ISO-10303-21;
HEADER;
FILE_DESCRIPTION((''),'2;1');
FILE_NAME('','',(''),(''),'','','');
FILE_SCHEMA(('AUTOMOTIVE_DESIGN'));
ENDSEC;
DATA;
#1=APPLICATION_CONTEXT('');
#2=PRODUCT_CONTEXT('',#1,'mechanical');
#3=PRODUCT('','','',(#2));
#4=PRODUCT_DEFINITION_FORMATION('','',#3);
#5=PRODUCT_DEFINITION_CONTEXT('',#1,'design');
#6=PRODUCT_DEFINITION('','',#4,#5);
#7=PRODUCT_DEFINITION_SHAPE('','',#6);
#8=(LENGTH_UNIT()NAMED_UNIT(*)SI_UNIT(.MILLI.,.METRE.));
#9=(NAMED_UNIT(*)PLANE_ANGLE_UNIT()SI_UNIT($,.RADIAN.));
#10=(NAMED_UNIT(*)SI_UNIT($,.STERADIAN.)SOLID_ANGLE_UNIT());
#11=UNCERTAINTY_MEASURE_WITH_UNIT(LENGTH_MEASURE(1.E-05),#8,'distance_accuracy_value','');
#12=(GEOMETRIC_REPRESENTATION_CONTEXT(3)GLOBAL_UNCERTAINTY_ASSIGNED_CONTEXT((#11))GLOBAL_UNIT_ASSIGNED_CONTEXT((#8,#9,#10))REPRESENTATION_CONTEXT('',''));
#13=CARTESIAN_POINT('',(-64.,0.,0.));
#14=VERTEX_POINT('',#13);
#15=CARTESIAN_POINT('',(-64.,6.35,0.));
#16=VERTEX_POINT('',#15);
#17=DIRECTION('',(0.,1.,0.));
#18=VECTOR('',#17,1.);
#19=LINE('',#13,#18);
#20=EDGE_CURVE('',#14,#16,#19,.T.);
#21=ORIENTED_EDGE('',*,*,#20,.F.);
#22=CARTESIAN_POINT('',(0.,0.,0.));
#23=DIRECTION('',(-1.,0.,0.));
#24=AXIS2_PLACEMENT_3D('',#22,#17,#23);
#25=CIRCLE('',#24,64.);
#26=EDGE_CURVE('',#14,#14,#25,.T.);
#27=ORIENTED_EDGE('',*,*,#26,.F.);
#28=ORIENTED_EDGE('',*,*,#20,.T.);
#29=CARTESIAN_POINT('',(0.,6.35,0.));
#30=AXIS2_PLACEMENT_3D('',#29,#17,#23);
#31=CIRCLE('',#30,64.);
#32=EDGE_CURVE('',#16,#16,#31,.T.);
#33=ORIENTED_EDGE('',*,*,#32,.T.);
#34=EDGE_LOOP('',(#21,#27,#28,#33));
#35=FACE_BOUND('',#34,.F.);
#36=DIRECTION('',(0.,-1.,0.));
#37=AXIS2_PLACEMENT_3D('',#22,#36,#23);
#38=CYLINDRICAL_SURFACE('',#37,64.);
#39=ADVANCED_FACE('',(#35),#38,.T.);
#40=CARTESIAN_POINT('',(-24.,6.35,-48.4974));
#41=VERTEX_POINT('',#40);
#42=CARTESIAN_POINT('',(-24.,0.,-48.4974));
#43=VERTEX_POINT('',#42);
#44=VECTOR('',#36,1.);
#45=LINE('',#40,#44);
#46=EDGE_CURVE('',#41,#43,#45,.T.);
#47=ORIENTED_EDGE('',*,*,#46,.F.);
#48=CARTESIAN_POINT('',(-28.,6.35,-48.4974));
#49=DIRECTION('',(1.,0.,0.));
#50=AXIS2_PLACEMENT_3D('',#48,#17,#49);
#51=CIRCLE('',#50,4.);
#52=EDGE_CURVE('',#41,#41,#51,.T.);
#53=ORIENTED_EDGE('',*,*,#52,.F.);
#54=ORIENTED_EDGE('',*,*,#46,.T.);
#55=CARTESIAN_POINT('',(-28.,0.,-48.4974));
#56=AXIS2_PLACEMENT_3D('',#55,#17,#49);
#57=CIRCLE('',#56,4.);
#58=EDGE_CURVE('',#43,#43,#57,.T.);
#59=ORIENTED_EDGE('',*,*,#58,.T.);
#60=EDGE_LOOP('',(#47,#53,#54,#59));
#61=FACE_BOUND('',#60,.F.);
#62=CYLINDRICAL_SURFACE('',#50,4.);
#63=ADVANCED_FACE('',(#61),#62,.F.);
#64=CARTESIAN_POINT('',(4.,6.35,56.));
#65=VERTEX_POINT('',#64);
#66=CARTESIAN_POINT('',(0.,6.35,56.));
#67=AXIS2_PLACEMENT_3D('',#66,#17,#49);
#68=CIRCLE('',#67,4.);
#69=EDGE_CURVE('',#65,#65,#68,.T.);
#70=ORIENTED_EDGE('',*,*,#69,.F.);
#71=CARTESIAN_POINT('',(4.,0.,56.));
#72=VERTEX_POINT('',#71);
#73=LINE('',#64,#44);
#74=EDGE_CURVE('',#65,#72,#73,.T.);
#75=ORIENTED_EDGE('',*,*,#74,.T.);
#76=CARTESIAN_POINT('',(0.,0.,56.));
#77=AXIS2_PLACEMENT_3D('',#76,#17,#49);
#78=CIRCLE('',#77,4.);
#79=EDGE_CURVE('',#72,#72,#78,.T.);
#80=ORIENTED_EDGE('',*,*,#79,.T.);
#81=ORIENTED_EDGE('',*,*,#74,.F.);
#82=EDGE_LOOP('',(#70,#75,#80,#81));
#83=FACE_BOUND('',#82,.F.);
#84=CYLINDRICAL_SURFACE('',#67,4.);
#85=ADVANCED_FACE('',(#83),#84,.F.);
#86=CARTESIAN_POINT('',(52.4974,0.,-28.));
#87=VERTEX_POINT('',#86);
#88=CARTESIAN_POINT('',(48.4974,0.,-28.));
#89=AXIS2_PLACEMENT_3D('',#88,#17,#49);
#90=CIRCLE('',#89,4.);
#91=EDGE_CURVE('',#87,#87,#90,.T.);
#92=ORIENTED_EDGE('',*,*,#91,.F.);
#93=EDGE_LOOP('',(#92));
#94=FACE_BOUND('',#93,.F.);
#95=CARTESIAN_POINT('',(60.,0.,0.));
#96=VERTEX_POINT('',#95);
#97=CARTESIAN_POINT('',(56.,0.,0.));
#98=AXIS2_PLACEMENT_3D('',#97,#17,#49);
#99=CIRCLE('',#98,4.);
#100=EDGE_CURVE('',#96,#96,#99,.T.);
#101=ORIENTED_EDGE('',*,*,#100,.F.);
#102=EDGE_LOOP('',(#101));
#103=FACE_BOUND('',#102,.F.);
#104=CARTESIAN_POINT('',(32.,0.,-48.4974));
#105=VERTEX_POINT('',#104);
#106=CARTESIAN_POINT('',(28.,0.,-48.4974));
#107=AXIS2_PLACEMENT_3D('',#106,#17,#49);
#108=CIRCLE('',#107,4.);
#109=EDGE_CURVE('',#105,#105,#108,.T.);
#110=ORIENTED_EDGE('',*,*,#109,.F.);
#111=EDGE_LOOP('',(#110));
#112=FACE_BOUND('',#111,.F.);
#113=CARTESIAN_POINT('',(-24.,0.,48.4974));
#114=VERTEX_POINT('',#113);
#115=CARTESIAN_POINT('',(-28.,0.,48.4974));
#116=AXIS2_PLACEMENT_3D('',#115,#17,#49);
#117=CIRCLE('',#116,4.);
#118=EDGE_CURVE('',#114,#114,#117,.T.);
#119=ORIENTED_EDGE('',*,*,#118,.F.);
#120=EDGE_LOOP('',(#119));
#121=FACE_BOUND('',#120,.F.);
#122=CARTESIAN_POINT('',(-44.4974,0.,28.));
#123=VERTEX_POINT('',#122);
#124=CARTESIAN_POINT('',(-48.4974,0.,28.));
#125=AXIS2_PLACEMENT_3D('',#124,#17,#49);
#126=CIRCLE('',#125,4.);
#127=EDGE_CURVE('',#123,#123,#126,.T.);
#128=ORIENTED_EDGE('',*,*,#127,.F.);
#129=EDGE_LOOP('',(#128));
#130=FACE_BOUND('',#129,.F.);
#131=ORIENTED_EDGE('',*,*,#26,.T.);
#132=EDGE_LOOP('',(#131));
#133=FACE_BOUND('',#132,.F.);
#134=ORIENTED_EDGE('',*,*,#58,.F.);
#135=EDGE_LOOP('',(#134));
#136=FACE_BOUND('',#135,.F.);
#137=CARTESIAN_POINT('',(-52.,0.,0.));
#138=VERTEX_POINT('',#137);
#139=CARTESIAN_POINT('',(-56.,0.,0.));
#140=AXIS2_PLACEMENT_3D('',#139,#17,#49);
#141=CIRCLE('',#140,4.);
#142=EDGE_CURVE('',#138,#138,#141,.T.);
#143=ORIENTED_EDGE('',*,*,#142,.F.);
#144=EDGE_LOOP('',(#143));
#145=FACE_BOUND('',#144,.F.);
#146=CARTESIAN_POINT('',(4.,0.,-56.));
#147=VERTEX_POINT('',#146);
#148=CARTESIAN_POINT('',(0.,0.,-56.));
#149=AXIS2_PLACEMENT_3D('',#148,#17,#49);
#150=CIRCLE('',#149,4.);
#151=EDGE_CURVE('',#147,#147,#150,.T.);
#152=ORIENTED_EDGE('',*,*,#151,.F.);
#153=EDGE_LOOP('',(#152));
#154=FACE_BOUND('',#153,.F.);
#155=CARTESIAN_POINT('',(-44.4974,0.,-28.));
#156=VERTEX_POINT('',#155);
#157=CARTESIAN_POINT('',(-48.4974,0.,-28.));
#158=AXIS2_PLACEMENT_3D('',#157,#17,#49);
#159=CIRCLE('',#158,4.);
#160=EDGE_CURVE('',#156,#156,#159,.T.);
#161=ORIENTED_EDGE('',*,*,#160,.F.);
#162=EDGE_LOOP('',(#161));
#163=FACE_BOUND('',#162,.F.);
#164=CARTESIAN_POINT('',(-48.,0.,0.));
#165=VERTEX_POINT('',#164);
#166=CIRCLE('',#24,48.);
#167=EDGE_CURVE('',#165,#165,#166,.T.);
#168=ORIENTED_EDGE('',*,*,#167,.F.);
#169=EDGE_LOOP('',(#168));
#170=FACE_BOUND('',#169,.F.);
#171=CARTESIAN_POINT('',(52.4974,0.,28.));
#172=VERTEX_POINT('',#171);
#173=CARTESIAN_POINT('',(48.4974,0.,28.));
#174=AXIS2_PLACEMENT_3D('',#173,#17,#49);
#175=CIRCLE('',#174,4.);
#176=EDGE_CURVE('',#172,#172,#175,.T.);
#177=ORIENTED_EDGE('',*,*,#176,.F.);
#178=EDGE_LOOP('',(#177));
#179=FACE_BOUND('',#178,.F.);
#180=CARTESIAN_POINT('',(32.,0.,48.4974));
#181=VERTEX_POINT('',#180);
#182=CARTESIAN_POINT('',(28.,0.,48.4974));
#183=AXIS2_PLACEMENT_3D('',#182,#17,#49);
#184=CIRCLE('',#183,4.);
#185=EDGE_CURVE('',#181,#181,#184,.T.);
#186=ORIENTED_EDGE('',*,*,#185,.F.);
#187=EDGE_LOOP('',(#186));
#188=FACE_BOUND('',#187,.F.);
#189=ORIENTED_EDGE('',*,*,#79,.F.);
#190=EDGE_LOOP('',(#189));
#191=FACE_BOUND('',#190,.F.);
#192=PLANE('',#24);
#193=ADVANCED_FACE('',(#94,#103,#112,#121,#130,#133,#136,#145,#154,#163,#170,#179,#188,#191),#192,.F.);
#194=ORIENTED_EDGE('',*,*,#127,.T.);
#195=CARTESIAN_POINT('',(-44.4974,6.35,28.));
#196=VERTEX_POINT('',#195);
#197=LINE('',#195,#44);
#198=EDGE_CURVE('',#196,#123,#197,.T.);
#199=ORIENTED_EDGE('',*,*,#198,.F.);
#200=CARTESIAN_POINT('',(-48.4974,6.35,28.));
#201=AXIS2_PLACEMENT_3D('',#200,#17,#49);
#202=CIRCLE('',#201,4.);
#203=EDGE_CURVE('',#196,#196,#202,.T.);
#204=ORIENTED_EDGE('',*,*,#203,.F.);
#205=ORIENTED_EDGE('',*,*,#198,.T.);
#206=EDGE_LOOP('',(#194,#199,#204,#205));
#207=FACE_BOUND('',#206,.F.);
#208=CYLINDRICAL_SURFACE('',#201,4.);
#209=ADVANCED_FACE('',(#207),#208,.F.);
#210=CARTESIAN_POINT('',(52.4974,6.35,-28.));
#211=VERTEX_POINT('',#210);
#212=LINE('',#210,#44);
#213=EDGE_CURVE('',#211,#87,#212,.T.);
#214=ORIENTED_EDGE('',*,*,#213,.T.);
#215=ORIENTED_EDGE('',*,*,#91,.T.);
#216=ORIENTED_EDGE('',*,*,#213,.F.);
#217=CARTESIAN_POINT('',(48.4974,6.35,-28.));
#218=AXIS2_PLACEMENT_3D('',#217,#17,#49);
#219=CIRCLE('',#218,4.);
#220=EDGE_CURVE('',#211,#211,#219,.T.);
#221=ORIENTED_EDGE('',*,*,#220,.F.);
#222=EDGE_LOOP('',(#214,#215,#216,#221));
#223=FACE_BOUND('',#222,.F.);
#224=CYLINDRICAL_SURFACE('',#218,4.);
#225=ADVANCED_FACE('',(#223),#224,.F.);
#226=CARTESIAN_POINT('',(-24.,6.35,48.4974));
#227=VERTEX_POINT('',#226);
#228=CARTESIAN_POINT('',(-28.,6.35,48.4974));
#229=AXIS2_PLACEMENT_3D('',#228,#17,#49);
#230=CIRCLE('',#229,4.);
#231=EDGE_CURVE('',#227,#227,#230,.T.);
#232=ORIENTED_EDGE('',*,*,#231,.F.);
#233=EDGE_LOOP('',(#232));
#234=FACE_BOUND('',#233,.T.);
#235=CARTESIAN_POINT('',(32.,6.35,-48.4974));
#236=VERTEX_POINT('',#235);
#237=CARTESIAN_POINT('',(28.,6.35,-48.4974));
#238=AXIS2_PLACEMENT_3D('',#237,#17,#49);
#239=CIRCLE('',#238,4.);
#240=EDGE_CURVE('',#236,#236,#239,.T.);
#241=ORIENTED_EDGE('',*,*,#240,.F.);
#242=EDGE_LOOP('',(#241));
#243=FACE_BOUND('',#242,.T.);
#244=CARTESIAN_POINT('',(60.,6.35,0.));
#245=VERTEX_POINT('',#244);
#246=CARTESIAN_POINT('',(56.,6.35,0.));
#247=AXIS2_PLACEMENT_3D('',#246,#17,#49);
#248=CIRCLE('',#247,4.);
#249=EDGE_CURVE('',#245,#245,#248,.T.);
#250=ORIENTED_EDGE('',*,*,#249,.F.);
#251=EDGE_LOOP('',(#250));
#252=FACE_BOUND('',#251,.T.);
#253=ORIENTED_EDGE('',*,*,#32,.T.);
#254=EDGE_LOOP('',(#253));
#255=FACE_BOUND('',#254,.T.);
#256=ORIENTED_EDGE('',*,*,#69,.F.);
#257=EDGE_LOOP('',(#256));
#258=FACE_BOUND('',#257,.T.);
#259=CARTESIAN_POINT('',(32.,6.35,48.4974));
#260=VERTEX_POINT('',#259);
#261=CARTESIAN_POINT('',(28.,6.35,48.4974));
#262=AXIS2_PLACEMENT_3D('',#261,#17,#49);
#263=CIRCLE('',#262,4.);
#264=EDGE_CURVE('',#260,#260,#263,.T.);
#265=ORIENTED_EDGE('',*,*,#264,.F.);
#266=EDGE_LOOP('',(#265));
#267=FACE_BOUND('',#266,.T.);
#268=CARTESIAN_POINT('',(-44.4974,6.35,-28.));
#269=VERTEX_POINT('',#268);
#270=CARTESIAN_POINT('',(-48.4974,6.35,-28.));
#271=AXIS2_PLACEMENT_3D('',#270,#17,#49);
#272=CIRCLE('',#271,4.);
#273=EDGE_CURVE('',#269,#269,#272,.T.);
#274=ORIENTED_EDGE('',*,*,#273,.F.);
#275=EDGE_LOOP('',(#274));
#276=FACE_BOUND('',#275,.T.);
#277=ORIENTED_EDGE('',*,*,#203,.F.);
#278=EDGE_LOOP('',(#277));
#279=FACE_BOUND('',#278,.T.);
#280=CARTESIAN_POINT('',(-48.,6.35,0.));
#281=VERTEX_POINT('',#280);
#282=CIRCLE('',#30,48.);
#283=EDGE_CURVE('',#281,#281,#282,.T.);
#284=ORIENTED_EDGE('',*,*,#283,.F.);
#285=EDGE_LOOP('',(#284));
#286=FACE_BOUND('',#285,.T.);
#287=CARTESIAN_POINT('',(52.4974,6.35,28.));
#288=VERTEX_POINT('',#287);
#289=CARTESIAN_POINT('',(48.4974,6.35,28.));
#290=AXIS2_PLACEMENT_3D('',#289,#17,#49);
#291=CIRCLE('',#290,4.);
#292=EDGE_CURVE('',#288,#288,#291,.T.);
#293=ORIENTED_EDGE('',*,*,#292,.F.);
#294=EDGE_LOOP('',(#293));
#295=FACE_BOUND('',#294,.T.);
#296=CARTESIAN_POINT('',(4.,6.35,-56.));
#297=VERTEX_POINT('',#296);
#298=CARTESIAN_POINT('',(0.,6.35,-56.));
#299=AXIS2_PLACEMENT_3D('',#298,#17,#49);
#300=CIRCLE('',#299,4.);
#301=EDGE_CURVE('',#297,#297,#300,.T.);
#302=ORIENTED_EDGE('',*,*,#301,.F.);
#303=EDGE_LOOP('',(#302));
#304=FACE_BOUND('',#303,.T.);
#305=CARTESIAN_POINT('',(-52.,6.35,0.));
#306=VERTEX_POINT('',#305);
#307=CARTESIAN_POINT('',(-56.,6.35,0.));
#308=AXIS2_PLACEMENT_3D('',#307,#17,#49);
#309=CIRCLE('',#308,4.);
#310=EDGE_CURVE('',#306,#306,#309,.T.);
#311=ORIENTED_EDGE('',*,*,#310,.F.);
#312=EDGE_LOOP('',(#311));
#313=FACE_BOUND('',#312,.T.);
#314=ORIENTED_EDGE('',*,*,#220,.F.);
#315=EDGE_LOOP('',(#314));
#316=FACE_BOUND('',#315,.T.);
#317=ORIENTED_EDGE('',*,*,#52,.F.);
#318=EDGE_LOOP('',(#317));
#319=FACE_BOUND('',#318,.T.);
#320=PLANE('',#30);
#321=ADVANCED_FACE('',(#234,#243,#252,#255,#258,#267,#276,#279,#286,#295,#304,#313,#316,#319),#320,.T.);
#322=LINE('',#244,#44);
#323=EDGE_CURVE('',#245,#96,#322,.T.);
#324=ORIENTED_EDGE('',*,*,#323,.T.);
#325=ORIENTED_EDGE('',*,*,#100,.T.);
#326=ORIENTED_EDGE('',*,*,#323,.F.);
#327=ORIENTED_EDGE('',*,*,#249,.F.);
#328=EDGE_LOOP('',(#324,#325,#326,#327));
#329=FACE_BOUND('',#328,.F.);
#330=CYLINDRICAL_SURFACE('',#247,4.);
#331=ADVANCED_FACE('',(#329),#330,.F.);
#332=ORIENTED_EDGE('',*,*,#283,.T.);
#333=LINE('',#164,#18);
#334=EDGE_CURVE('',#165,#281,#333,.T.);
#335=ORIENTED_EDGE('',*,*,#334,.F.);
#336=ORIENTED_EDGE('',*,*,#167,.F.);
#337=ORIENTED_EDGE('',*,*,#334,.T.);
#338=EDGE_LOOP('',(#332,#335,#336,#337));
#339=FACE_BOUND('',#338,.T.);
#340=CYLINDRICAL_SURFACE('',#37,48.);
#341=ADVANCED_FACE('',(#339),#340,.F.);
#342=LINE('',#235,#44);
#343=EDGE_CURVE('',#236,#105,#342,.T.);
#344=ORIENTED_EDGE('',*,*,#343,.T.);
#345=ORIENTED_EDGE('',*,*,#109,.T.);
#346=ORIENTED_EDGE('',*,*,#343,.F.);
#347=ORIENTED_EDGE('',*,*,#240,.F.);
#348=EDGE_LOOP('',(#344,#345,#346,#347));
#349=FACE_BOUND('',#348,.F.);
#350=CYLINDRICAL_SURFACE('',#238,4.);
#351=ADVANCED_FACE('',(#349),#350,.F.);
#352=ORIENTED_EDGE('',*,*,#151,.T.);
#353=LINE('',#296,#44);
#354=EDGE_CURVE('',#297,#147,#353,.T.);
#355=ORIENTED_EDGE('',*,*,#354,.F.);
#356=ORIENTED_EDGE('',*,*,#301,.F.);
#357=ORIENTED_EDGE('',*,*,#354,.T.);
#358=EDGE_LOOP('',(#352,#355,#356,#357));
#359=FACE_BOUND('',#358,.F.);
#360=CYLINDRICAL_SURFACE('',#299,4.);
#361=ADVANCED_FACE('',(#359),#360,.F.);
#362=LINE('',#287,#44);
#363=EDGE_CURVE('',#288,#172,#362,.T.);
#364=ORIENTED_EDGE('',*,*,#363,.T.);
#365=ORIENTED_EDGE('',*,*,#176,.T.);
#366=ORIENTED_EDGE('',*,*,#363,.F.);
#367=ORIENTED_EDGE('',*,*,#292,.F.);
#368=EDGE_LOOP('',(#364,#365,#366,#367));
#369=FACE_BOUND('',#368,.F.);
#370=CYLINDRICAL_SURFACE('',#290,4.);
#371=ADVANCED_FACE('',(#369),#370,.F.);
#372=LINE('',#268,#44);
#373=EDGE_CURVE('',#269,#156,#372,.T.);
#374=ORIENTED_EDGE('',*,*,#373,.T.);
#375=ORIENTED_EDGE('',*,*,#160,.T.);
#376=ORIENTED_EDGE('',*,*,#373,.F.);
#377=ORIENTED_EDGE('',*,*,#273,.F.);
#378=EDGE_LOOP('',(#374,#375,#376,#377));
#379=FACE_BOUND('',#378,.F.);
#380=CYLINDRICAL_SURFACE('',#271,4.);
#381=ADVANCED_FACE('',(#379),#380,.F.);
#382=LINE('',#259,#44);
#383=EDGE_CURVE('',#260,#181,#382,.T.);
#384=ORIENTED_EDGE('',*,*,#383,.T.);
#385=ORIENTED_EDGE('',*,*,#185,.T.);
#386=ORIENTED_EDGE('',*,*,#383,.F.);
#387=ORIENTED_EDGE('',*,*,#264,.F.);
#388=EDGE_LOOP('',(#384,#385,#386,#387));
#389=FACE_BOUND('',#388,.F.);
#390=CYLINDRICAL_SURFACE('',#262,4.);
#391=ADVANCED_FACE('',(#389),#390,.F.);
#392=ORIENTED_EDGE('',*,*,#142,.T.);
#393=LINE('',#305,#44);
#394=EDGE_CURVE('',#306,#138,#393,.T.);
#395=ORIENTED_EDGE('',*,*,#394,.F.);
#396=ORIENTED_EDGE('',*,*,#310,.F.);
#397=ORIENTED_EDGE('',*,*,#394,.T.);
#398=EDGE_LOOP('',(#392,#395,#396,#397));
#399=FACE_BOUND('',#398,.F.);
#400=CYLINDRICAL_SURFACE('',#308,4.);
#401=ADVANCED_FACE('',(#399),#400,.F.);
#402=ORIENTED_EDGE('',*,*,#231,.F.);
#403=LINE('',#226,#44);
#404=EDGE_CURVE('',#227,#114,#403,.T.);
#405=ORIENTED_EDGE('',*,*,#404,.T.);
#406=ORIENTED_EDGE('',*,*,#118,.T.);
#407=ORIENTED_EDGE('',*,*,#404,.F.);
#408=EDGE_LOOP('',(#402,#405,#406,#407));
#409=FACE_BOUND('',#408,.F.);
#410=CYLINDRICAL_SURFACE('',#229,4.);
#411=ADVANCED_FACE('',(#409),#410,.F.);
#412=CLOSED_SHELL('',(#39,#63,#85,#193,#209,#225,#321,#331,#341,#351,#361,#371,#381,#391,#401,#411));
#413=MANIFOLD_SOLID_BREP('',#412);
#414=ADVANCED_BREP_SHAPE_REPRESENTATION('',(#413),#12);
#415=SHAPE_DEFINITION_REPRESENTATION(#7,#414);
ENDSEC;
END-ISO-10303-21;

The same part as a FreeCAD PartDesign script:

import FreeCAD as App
import Part
import Sketcher

V = App.Vector
Q = App.Units.Quantity

doc = App.newDocument("Part")
body = doc.addObject("PartDesign::Body", "Body")

# Sketch on XZ plane
sketch1 = doc.addObject("Sketcher::SketchObject", "Sketch")
body.addObject(sketch1)
sketch1.AttachmentSupport = (doc.XZ_Plane, [""])
sketch1.MapMode = "FlatFace"
sketch1.addGeometry(Part.Circle(V(0, 0, 0), V(0, 0, 1), 64), False)
sketch1.addGeometry(Part.Circle(V(0, 0, 0), V(0, 0, 1), 48), False)
sketch1.addConstraint(Sketcher.Constraint("Coincident", 0, 3, -1, 1))
sketch1.addConstraint(Sketcher.Constraint("Coincident", 1, 3, -1, 1))
sketch1.addConstraint(Sketcher.Constraint("Diameter", 0, Q("128 mm")))
sketch1.addConstraint(Sketcher.Constraint("Diameter", 1, Q("96 mm")))
pad1 = doc.addObject("PartDesign::Pad", "Pad")
body.addObject(pad1)
pad1.Profile = sketch1
pad1.Length = 6.35
pad1.Reversed = True

# Sketch on XZ plane
sketch2 = doc.addObject("Sketcher::SketchObject", "Sketch001")
body.addObject(sketch2)
sketch2.AttachmentSupport = (doc.XZ_Plane, [""])
sketch2.MapMode = "FlatFace"
sketch2.AttachmentOffset = App.Placement(V(0, 0, -6.35), App.Rotation())
sketch2.addGeometry(Part.Circle(V(0, -56, 0), V(0, 0, 1), 4), False)
sketch2.addGeometry(Part.Circle(V(-28, -48.4974, 0), V(0, 0, 1), 4), False)
sketch2.addGeometry(Part.Circle(V(-48.4974, -28, 0), V(0, 0, 1), 4), False)
sketch2.addGeometry(Part.Circle(V(-56, 0, 0), V(0, 0, 1), 4), False)
sketch2.addGeometry(Part.Circle(V(-48.4974, 28, 0), V(0, 0, 1), 4), False)
sketch2.addGeometry(Part.Circle(V(-28, 48.4974, 0), V(0, 0, 1), 4), False)
sketch2.addGeometry(Part.Circle(V(0, 56, 0), V(0, 0, 1), 4), False)
sketch2.addGeometry(Part.Circle(V(28, 48.4974, 0), V(0, 0, 1), 4), False)
sketch2.addGeometry(Part.Circle(V(48.4974, 28, 0), V(0, 0, 1), 4), False)
sketch2.addGeometry(Part.Circle(V(56, 0, 0), V(0, 0, 1), 4), False)
sketch2.addGeometry(Part.Circle(V(48.4974, -28, 0), V(0, 0, 1), 4), False)
sketch2.addGeometry(Part.Circle(V(28, -48.4974, 0), V(0, 0, 1), 4), False)
sketch2.addConstraint(Sketcher.Constraint("Equal", 0, 1))
sketch2.addConstraint(Sketcher.Constraint("Equal", 1, 2))
sketch2.addConstraint(Sketcher.Constraint("Equal", 2, 3))
sketch2.addConstraint(Sketcher.Constraint("Equal", 3, 4))
sketch2.addConstraint(Sketcher.Constraint("Equal", 4, 5))
sketch2.addConstraint(Sketcher.Constraint("Equal", 5, 6))
sketch2.addConstraint(Sketcher.Constraint("Equal", 6, 7))
sketch2.addConstraint(Sketcher.Constraint("Equal", 7, 8))
sketch2.addConstraint(Sketcher.Constraint("Equal", 8, 9))
sketch2.addConstraint(Sketcher.Constraint("Equal", 9, 10))
sketch2.addConstraint(Sketcher.Constraint("Equal", 10, 11))
sketch2.addConstraint(Sketcher.Constraint("Symmetric", 0, 3, 6, 3, -1, 1))
sketch2.addConstraint(Sketcher.Constraint("Symmetric", 1, 3, 7, 3, -1, 1))
sketch2.addConstraint(Sketcher.Constraint("Symmetric", 2, 3, 8, 3, -1, 1))
sketch2.addConstraint(Sketcher.Constraint("Symmetric", 3, 3, 9, 3, -1, 1))
sketch2.addConstraint(Sketcher.Constraint("Symmetric", 4, 3, 10, 3, -1, 1))
sketch2.addConstraint(Sketcher.Constraint("Symmetric", 5, 3, 11, 3, -1, 1))
sketch2.addConstraint(Sketcher.Constraint("Symmetric", 5, 3, 7, 3, -2))
sketch2.addConstraint(Sketcher.Constraint("Symmetric", 4, 3, 8, 3, -2))
sketch2.addConstraint(Sketcher.Constraint("PointOnObject", 0, 3, -2))
sketch2.addConstraint(Sketcher.Constraint("PointOnObject", 3, 3, -1))
sketch2.addConstraint(Sketcher.Constraint("Diameter", 0, Q("8 mm")))
sketch2.addConstraint(Sketcher.Constraint("DistanceY", 0, 3, -1, 1, Q("56 mm")))
sketch2.addConstraint(Sketcher.Constraint("DistanceX", 3, 3, -1, 1, Q("56 mm")))
sketch2.addConstraint(Sketcher.Constraint("DistanceY", 2, 3, 4, 3, Q("56 mm")))
sketch2.addConstraint(Sketcher.Constraint("DistanceX", 5, 3, 7, 3, Q("56 mm")))
sketch2.addConstraint(Sketcher.Constraint("DistanceY", 1, 3, -1, 1, Q("48.4974 mm")))
sketch2.addConstraint(Sketcher.Constraint("DistanceX", 2, 3, -1, 1, Q("48.4974 mm")))
pocket1 = doc.addObject("PartDesign::Pocket", "Pocket")
body.addObject(pocket1)
pocket1.Profile = sketch2
pocket1.Type = "ThroughAll"
pocket1.Reversed = True

doc.recompute()
